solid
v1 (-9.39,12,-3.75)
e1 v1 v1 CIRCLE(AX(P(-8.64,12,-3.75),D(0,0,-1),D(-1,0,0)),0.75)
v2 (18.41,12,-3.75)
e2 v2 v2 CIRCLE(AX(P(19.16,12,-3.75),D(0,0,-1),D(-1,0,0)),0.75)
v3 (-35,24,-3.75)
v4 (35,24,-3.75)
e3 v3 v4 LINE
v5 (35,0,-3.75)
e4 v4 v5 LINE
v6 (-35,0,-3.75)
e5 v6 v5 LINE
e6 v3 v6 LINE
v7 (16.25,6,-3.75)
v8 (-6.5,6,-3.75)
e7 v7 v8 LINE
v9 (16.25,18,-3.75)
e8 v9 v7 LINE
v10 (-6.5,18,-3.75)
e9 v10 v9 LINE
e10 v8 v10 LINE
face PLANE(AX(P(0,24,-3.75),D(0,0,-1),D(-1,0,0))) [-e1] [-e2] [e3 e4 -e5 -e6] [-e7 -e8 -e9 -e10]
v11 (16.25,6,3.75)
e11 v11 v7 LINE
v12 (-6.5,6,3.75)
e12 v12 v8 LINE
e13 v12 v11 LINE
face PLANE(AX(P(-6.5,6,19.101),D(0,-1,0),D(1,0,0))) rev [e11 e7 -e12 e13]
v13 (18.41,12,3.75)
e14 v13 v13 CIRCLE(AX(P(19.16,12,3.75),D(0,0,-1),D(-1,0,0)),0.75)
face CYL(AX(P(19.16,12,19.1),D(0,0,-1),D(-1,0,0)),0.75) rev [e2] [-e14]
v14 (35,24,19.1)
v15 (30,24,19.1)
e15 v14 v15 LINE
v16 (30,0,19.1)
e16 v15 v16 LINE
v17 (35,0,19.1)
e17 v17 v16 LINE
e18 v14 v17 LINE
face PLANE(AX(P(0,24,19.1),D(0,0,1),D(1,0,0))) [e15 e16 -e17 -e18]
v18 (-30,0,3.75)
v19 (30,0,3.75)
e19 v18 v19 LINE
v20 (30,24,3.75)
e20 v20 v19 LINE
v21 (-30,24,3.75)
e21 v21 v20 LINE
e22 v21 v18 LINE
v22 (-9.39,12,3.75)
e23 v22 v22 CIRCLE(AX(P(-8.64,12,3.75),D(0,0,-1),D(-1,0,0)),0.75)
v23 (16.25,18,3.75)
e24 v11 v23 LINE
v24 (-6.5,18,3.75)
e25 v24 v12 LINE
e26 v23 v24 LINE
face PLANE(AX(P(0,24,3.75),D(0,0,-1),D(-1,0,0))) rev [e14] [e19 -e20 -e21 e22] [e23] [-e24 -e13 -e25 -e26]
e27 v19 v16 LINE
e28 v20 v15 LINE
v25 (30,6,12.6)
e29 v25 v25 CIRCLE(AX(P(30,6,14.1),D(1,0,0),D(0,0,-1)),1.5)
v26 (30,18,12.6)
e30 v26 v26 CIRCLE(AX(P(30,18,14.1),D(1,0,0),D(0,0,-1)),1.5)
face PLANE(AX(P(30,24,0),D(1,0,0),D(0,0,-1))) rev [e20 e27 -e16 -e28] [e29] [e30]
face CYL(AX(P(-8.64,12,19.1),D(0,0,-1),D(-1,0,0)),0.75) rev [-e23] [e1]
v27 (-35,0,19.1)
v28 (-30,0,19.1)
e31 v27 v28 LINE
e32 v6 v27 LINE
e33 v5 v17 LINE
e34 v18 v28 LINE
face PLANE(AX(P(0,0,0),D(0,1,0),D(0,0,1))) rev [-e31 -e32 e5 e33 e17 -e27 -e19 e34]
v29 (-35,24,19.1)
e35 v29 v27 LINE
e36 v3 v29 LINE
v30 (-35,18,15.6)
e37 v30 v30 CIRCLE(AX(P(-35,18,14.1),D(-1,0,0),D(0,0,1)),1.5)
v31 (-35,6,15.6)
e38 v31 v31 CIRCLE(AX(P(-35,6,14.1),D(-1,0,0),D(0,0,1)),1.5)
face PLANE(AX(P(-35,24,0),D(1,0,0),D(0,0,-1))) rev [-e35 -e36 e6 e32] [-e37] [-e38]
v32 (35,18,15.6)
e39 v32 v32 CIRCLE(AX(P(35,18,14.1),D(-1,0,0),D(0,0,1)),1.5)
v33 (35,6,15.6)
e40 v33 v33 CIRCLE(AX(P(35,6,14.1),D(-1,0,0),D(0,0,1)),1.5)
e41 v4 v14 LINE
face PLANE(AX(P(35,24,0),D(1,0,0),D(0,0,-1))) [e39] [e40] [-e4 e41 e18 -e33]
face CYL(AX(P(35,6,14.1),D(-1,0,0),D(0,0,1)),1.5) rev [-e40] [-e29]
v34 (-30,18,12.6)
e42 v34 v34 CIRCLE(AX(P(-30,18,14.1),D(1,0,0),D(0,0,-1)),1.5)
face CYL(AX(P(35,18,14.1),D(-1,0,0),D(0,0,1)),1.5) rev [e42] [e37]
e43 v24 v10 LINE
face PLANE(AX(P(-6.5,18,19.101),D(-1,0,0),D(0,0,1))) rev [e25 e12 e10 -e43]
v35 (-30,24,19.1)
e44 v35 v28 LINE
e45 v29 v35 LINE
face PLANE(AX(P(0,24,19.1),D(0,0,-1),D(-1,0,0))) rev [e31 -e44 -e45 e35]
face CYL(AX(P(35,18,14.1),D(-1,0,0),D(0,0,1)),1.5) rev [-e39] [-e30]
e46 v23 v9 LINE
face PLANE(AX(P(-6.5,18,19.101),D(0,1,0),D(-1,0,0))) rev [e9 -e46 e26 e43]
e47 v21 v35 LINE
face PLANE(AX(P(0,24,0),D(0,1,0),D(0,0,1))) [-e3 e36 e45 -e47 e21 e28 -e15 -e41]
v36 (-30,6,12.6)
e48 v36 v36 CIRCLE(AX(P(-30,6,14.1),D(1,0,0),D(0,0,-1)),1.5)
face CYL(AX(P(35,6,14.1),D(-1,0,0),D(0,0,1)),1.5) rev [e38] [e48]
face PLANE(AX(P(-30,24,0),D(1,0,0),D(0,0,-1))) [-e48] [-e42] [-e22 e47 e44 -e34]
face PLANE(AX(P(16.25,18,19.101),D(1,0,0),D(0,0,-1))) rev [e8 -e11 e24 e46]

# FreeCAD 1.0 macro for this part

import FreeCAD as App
import Part
import Sketcher


def add_polygon(sketch, points):
    """Adds a closed chain of lines whose ends are joined by coincident constraints."""
    first, n = sketch.GeometryCount, len(points)
    for a, b in zip(points, points[1:] + points[:1]):
        sketch.addGeometry(Part.LineSegment(App.Vector(*a, 0), App.Vector(*b, 0)), False)
    for i in range(n):
        sketch.addConstraint(Sketcher.Constraint("Coincident", first + i, 2, first + (i + 1) % n, 1))

doc = App.newDocument("Part")
params = doc.addObject("Spreadsheet::Sheet", "Params")
for row, (alias, value) in enumerate([
    ("sketch1_width", "5 mm"),
    ("sketch1_width2", "60 mm"),
    ("sketch1_height", "15.35 mm"),
    ("sketch1_height2", "22.85 mm"),
    ("pad1_length", "24 mm"),
    ("sketch2_diameter", "3 mm"),
    ("sketch3_height", "12 mm"),
    ("sketch3_width", "22.75 mm"),
    ("sketch4_diameter", "1.5 mm"),
], start=1):
    params.set(f"A{row}", alias)
    params.set(f"B{row}", "=" + value)
    params.setAlias(f"B{row}", alias)

body = doc.addObject("PartDesign::Body", "Body")

sketch1 = body.newObject("Sketcher::SketchObject", "Sketch")
sketch1.AttachmentSupport = (doc.getObject("XZ_Plane"), [""])
sketch1.MapMode = "FlatFace"
add_polygon(sketch1, [(-35, 19), (-30, 19), (-30, 4), (30, 4), (30, 19), (35, 19), (35, -4), (-35, -4)])
sketch1.addConstraint(Sketcher.Constraint("Horizontal", 0))
sketch1.addConstraint(Sketcher.Constraint("Vertical", 1))
sketch1.addConstraint(Sketcher.Constraint("Horizontal", 2))
sketch1.addConstraint(Sketcher.Constraint("Vertical", 3))
sketch1.addConstraint(Sketcher.Constraint("Horizontal", 4))
sketch1.addConstraint(Sketcher.Constraint("Vertical", 5))
sketch1.addConstraint(Sketcher.Constraint("Horizontal", 6))
sketch1.addConstraint(Sketcher.Constraint("Vertical", 7))
sketch1.addConstraint(Sketcher.Constraint("Symmetric", 0, 2, 3, 2, -2))
sketch1.addConstraint(Sketcher.Constraint("Equal", 0, 4))
sketch1.addConstraint(Sketcher.Constraint("DistanceX", 0, 1, 0, 2, 5.0))
sketch1.addConstraint(Sketcher.Constraint("DistanceX", 2, 1, 2, 2, 60.0))
sketch1.addConstraint(Sketcher.Constraint("DistanceY", 1, 2, 1, 1, 15.35))
sketch1.addConstraint(Sketcher.Constraint("DistanceY", 5, 2, 5, 1, 22.85))
sketch1.addConstraint(Sketcher.Constraint("DistanceY", -1, 1, 0, 2, 19.1))
sketch1.setExpression("Constraints[18]", "Params.sketch1_width")
sketch1.setExpression("Constraints[19]", "Params.sketch1_width2")
sketch1.setExpression("Constraints[20]", "Params.sketch1_height")
sketch1.setExpression("Constraints[21]", "Params.sketch1_height2")
pad1 = body.newObject("PartDesign::Pad", "Pad")
pad1.Profile = sketch1
pad1.setExpression("Length", "Params.pad1_length")
pad1.Reversed = True

sketch2 = body.newObject("Sketcher::SketchObject", "Sketch001")
sketch2.AttachmentSupport = (doc.getObject("YZ_Plane"), [""])
sketch2.MapMode = "FlatFace"
sketch2.AttachmentOffset = App.Placement(App.Vector(0, 0, -35), App.Rotation())
sketch2.addGeometry(Part.Circle(App.Vector(18, 14.1, 0), App.Vector(0, 0, 1), 1.5), False)
sketch2.addGeometry(Part.Circle(App.Vector(6, 14.1, 0), App.Vector(0, 0, 1), 1.5), False)
sketch2.addConstraint(Sketcher.Constraint("Equal", 0, 1))
sketch2.addConstraint(Sketcher.Constraint("Horizontal", 0, 3, 1, 3))
sketch2.addConstraint(Sketcher.Constraint("Diameter", 0, 3.0))
sketch2.addConstraint(Sketcher.Constraint("DistanceX", -1, 1, 0, 3, 18.0))
sketch2.addConstraint(Sketcher.Constraint("DistanceX", -1, 1, 1, 3, 6.0))
sketch2.addConstraint(Sketcher.Constraint("DistanceY", -1, 1, 0, 3, 14.1))
sketch2.setExpression("Constraints[2]", "Params.sketch2_diameter")
pocket1 = body.newObject("PartDesign::Pocket", "Pocket")
pocket1.Profile = sketch2
pocket1.Type = "ThroughAll"
pocket1.Reversed = True

sketch3 = body.newObject("Sketcher::SketchObject", "Sketch002")
sketch3.AttachmentSupport = (doc.getObject("XY_Plane"), [""])
sketch3.MapMode = "FlatFace"
sketch3.AttachmentOffset = App.Placement(App.Vector(0, 0, -3.75), App.Rotation())
add_polygon(sketch3, [(16, 18), (16, 6), (-6, 6), (-6, 18)])
sketch3.addConstraint(Sketcher.Constraint("Vertical", 0))
sketch3.addConstraint(Sketcher.Constraint("Horizontal", 1))
sketch3.addConstraint(Sketcher.Constraint("Vertical", 2))
sketch3.addConstraint(Sketcher.Constraint("Horizontal", 3))
sketch3.addConstraint(Sketcher.Constraint("DistanceY", 0, 2, 0, 1, 12.0))
sketch3.addConstraint(Sketcher.Constraint("DistanceY", -1, 1, 0, 2, 6.0))
sketch3.addConstraint(Sketcher.Constraint("DistanceX", 1, 2, 1, 1, 22.75))
sketch3.addConstraint(Sketcher.Constraint("DistanceX", 1, 2, -1, 1, 6.5))
sketch3.setExpression("Constraints[8]", "Params.sketch3_height")
sketch3.setExpression("Constraints[10]", "Params.sketch3_width")
pocket2 = body.newObject("PartDesign::Pocket", "Pocket001")
pocket2.Profile = sketch3
pocket2.Type = "UpToFirst"
pocket2.Reversed = True

sketch4 = body.newObject("Sketcher::SketchObject", "Sketch003")
sketch4.AttachmentSupport = (doc.getObject("XY_Plane"), [""])
sketch4.MapMode = "FlatFace"
sketch4.AttachmentOffset = App.Placement(App.Vector(0, 0, -3.75), App.Rotation())
sketch4.addGeometry(Part.Circle(App.Vector(19.2, 12, 0), App.Vector(0, 0, 1), 0.8), False)
sketch4.addGeometry(Part.Circle(App.Vector(-8.6, 12, 0), App.Vector(0, 0, 1), 0.8), False)
sketch4.addConstraint(Sketcher.Constraint("Equal", 0, 1))
sketch4.addConstraint(Sketcher.Constraint("Horizontal", 0, 3, 1, 3))
sketch4.addConstraint(Sketcher.Constraint("Diameter", 0, 1.5))
sketch4.addConstraint(Sketcher.Constraint("DistanceY", -1, 1, 0, 3, 12.0))
sketch4.addConstraint(Sketcher.Constraint("DistanceX", 1, 3, 0, 3, 27.8))
sketch4.addConstraint(Sketcher.Constraint("DistanceX", -1, 1, 0, 3, 19.16))
sketch4.setExpression("Constraints[2]", "Params.sketch4_diameter")
pocket3 = body.newObject("PartDesign::Pocket", "Pocket002")
pocket3.Profile = sketch4
pocket3.Type = "ThroughAll"
pocket3.Reversed = True

doc.recompute()
